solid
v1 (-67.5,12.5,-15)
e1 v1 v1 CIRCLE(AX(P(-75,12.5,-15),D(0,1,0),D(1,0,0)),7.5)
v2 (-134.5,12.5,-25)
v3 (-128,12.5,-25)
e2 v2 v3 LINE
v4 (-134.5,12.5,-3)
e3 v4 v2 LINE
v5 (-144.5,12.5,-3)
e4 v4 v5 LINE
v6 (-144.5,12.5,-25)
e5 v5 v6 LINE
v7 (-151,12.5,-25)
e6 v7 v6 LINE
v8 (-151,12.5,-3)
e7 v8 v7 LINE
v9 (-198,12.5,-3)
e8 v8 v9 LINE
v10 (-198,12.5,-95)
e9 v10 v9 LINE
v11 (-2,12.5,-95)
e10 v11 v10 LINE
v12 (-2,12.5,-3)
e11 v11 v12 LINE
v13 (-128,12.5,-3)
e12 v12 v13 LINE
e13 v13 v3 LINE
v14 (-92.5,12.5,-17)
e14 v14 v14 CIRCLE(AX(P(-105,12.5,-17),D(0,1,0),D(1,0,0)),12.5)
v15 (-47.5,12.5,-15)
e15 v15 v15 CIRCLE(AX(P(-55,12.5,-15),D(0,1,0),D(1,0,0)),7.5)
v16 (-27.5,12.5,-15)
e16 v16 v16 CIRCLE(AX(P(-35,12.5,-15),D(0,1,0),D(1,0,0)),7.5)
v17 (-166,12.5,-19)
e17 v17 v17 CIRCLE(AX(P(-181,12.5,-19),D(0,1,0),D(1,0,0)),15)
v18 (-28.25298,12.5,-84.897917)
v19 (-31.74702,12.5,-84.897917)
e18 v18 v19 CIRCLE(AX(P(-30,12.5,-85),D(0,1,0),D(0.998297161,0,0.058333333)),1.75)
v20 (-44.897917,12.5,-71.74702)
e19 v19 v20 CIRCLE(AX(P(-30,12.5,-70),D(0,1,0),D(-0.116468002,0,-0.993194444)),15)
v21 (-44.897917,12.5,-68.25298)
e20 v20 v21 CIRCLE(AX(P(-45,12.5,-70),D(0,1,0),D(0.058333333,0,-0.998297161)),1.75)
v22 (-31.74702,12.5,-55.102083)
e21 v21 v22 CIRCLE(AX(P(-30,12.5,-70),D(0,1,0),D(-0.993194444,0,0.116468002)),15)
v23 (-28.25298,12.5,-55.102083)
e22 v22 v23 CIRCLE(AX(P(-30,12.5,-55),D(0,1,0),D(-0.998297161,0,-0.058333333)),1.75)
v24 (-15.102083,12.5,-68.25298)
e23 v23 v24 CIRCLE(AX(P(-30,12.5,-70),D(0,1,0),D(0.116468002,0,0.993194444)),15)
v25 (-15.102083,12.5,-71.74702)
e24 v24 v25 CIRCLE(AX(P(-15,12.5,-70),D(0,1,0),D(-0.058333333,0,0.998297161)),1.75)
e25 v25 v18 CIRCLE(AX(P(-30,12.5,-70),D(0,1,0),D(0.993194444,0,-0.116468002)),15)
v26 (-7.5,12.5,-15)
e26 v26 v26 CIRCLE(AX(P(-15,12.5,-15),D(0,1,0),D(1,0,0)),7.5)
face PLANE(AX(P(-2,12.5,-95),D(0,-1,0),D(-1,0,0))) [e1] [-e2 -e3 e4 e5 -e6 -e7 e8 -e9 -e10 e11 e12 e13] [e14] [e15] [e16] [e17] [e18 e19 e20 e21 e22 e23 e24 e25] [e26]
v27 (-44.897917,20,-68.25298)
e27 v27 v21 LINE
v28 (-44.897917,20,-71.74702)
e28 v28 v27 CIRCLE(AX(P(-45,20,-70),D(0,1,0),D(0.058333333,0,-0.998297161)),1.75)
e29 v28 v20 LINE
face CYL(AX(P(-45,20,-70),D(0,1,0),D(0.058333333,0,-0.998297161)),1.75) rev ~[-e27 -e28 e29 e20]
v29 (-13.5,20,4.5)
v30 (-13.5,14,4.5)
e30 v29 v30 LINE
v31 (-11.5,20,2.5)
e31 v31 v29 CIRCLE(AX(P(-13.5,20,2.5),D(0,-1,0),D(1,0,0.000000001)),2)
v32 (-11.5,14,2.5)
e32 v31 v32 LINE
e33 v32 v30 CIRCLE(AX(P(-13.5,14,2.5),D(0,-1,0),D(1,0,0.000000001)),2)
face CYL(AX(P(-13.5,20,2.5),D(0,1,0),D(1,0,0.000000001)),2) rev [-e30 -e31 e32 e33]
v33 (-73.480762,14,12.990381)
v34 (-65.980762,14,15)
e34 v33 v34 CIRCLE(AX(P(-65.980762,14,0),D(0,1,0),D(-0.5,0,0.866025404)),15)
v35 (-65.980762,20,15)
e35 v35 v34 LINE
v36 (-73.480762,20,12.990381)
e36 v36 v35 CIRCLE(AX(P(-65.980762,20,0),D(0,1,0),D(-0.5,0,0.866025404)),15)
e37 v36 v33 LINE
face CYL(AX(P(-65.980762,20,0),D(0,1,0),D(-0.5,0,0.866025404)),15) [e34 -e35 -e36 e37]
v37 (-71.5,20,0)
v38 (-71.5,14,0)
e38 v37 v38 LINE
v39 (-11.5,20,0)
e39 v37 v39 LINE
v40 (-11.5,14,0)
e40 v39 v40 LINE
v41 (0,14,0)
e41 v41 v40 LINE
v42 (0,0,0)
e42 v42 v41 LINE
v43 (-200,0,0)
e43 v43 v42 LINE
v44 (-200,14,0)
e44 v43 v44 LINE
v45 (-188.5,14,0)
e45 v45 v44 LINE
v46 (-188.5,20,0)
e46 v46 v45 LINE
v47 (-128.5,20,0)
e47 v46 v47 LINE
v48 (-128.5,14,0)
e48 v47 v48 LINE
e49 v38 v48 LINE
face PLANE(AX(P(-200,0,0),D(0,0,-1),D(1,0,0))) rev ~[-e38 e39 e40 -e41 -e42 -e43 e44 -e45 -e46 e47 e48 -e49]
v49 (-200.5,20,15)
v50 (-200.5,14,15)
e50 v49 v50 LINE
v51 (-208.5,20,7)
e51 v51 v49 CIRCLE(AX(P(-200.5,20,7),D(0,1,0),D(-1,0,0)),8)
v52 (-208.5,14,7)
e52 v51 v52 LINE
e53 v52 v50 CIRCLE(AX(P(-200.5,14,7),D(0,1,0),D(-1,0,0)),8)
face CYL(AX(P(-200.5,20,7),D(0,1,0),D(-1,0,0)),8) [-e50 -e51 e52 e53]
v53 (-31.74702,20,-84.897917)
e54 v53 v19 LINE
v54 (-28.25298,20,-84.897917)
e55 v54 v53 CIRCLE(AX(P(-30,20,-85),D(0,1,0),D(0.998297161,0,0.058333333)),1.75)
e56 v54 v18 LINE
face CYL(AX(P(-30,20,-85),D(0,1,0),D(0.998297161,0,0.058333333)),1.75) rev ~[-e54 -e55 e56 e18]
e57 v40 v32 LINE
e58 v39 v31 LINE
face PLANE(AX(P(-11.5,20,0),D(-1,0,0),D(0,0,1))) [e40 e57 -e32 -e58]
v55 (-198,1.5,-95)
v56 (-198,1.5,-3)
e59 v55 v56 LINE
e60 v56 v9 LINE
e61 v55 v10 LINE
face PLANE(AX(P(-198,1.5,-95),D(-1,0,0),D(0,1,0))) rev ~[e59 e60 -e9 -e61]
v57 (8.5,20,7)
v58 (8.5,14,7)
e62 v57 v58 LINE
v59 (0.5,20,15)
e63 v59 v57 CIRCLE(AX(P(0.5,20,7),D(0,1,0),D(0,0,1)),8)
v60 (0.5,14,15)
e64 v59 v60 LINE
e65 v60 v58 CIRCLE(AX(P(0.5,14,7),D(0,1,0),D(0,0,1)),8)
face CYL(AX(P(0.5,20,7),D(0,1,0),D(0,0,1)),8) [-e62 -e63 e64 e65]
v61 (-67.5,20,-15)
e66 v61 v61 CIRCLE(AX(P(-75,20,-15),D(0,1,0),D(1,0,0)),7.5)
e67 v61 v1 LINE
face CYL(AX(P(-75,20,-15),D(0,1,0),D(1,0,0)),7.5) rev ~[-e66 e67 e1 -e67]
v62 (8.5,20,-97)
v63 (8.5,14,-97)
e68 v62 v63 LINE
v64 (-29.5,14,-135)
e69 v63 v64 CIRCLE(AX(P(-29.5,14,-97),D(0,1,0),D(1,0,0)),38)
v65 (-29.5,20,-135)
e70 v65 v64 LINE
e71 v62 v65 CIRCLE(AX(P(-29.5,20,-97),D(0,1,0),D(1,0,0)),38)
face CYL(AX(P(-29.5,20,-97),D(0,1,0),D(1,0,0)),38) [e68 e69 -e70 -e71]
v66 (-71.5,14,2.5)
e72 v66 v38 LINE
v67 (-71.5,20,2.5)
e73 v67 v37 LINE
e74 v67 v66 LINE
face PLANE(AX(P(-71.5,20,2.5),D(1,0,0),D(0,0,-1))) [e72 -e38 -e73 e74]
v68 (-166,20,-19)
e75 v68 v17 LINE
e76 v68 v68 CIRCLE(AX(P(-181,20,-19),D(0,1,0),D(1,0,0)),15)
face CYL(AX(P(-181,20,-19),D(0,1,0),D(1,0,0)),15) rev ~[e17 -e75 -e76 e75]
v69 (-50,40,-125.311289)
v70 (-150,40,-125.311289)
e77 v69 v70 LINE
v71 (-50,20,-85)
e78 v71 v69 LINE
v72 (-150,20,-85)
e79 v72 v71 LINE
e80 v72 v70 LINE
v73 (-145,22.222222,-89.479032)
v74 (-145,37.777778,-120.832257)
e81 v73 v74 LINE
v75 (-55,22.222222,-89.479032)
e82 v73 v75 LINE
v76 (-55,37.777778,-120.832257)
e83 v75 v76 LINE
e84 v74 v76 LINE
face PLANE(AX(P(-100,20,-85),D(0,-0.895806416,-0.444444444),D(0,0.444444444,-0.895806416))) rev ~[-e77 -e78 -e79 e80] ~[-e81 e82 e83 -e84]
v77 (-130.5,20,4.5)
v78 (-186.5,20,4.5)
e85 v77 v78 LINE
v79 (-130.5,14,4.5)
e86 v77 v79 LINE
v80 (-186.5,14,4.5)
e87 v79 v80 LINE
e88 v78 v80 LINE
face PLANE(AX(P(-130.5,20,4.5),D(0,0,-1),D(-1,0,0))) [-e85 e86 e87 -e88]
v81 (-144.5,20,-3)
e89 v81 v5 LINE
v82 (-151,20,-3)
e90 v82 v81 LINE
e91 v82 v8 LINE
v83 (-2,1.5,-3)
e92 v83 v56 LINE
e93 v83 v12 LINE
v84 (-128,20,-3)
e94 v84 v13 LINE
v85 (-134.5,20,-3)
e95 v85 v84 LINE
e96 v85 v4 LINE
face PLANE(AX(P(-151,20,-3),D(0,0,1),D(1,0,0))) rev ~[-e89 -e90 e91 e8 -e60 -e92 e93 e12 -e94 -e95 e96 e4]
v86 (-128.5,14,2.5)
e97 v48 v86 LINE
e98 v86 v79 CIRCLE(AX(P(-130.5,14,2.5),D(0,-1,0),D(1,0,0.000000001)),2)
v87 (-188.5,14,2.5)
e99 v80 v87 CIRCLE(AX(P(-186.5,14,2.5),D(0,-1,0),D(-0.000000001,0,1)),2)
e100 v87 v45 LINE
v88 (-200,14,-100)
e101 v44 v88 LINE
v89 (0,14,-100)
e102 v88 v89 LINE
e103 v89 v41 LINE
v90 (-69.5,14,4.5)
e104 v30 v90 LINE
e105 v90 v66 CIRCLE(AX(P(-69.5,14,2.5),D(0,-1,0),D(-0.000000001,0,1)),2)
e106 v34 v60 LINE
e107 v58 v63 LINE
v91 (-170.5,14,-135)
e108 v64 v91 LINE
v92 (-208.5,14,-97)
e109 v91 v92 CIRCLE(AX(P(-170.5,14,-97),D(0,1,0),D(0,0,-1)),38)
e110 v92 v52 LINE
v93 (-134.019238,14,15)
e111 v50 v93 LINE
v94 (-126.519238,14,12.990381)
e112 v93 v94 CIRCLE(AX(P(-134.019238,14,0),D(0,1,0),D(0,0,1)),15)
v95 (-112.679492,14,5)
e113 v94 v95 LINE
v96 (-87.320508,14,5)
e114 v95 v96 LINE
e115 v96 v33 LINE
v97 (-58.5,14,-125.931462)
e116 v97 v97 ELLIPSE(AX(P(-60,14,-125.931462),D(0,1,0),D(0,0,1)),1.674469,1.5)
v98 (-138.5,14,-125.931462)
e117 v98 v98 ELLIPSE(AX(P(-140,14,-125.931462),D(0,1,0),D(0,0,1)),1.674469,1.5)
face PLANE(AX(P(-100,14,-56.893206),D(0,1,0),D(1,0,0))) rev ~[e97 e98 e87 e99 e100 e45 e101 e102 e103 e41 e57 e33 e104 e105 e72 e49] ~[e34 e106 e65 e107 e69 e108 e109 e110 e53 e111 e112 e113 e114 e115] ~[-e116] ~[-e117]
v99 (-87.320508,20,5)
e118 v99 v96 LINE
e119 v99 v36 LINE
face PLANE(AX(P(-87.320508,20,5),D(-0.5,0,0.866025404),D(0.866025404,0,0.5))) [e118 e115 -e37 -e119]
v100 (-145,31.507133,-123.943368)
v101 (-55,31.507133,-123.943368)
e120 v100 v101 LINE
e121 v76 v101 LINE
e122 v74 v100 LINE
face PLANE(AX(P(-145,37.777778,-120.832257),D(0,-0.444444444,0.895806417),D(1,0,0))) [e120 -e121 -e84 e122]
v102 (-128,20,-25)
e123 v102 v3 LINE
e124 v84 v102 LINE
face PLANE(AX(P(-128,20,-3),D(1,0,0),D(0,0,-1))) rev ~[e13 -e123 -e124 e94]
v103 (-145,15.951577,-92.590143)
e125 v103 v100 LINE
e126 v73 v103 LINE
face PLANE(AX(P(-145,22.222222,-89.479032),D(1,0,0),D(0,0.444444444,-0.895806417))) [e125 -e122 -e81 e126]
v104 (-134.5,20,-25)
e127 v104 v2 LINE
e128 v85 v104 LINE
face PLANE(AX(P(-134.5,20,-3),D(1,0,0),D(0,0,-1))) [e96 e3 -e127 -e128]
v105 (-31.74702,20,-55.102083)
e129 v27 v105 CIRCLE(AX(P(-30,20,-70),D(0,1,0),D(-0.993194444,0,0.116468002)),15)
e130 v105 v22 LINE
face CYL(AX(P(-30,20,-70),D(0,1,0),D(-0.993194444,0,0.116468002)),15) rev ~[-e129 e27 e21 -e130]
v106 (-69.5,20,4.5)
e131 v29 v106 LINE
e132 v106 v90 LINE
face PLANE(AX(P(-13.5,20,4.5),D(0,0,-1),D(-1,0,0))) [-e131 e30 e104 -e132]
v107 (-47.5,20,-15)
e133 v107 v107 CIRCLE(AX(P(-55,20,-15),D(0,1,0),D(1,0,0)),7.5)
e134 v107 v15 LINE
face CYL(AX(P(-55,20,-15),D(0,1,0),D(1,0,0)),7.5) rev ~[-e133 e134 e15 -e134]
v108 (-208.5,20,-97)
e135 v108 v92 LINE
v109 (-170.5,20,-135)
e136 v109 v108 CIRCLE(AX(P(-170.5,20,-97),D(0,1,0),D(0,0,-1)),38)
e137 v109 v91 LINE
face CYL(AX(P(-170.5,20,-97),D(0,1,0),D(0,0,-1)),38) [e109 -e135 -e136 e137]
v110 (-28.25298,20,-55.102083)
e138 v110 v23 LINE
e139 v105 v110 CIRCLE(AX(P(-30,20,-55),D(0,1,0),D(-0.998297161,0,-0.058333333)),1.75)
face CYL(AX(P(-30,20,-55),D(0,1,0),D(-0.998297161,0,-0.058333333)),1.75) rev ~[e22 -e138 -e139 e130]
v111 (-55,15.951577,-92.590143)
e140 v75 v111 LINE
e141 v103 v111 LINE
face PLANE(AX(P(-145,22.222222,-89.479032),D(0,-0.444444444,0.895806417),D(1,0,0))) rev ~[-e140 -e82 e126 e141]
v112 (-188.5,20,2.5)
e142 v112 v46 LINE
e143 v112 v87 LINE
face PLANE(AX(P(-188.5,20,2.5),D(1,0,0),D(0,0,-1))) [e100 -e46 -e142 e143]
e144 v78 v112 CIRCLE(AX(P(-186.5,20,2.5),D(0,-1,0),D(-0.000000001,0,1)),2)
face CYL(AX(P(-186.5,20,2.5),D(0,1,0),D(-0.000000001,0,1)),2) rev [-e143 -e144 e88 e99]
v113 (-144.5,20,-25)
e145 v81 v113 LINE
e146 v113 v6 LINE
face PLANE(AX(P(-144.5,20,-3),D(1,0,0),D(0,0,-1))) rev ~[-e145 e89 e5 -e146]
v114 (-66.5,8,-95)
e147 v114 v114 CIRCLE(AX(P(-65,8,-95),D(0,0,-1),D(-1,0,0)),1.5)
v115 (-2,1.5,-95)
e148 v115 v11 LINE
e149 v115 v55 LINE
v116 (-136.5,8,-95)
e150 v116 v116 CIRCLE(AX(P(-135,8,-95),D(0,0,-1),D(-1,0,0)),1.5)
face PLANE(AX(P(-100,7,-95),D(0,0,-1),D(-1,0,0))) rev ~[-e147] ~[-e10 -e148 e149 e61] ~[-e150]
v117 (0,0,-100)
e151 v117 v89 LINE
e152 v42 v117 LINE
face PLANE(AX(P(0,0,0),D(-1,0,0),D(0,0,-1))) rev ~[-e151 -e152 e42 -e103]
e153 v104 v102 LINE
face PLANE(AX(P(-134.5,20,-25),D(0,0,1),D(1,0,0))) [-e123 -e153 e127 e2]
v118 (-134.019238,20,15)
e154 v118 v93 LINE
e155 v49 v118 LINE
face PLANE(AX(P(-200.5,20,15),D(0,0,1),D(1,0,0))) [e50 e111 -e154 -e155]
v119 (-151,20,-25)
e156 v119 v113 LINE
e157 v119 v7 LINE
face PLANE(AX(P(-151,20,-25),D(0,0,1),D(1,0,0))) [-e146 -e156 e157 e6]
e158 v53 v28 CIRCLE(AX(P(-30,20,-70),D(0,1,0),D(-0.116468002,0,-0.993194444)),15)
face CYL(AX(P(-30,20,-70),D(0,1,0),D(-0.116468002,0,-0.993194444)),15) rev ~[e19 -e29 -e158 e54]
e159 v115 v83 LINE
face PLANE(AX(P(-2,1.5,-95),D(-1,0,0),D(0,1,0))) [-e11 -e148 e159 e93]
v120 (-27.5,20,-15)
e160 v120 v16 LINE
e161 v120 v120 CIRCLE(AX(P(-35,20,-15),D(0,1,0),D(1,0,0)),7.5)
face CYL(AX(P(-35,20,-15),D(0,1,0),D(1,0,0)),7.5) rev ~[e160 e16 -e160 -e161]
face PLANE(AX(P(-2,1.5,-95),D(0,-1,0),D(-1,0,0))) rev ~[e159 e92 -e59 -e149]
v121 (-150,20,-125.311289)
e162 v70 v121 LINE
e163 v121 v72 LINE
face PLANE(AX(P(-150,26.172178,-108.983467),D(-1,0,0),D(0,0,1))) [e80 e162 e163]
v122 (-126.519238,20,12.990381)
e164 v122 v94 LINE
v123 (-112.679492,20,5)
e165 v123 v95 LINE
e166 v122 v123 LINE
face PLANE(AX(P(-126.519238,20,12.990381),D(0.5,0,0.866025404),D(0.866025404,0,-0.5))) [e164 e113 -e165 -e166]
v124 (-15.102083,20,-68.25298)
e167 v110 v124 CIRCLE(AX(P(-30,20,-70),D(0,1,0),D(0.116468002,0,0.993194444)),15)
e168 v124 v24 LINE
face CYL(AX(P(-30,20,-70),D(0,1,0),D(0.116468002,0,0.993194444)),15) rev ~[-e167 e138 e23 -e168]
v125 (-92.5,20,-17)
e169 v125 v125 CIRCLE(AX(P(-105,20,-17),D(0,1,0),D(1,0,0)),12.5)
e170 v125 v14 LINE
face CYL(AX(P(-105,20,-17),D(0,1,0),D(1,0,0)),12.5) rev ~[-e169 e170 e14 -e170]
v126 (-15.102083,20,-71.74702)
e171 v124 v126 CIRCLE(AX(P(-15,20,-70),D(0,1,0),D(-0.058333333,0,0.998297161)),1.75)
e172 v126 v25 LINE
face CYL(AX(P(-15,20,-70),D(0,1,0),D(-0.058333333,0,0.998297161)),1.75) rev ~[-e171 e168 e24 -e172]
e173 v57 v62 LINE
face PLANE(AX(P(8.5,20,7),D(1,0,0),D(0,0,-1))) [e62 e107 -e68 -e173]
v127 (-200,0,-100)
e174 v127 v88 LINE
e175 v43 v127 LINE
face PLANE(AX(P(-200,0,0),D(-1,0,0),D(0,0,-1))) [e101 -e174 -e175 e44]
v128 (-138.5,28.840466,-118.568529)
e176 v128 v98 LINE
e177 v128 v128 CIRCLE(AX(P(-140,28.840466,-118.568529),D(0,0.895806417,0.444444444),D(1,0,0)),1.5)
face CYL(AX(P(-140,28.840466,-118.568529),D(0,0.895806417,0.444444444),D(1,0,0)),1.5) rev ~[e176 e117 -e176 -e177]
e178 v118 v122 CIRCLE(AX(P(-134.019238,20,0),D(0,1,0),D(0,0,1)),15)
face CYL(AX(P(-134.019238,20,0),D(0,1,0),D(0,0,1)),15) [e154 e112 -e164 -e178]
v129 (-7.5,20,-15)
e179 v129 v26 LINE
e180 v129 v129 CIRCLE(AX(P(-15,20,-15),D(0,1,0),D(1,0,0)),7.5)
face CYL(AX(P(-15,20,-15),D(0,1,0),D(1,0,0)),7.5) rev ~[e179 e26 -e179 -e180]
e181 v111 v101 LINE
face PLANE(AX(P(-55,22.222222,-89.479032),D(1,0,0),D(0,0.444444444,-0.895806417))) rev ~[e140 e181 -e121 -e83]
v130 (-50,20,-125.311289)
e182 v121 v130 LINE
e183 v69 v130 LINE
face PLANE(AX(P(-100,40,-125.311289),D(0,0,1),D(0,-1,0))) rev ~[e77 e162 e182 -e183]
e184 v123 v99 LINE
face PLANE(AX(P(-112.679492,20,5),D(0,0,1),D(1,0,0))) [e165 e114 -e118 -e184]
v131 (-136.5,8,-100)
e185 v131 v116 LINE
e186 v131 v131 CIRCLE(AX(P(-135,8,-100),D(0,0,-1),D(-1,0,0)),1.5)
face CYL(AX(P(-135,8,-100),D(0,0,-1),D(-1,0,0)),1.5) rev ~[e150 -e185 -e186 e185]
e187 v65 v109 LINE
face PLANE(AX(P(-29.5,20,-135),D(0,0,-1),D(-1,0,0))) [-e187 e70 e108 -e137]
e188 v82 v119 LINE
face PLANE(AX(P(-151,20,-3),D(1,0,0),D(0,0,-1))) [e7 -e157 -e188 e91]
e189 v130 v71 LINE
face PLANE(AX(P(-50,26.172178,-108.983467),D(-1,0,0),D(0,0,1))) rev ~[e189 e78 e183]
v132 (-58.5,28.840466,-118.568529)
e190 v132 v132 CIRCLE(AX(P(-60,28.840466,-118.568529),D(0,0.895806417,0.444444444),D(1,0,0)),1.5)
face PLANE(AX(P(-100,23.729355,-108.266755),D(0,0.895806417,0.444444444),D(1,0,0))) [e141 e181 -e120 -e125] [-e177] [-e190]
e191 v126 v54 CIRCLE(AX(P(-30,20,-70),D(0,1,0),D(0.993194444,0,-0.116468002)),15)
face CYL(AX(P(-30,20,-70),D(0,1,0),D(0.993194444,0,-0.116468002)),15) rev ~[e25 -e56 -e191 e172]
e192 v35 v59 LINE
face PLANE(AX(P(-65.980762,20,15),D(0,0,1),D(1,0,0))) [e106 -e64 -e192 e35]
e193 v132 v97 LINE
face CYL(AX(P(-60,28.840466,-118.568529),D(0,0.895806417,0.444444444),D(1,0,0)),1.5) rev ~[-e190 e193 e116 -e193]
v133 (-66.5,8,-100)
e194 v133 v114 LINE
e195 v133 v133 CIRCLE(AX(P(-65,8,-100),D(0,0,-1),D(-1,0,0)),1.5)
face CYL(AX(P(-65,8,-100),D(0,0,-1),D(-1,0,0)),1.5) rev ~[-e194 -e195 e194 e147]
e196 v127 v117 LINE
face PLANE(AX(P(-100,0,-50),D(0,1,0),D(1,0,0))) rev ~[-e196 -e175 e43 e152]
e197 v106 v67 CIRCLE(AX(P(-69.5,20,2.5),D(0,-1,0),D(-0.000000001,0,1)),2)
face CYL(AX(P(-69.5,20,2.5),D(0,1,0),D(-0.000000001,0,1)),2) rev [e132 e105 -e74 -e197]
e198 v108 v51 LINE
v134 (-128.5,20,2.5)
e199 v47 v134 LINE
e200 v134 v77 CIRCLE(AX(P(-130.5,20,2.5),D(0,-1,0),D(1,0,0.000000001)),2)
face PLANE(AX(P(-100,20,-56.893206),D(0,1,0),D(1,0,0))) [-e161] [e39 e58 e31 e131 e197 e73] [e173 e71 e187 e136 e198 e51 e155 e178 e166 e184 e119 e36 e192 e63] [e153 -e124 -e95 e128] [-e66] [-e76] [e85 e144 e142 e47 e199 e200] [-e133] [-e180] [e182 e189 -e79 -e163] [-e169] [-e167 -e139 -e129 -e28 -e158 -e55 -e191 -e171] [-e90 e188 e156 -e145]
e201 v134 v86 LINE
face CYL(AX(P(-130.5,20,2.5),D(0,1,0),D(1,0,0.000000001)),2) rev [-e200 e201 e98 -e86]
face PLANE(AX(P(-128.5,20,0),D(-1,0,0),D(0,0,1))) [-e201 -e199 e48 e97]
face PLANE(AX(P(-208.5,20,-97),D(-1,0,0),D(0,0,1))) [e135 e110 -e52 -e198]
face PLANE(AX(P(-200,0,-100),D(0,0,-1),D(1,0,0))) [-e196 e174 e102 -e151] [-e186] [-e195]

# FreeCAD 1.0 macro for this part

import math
import FreeCAD as App
import Part
import Sketcher
from FreeCAD import Vector
Q = App.Units.Quantity


def add_polygon(sketch, points):
    """Adds a closed chain of lines whose ends are joined by coincident constraints."""
    first, n = sketch.GeometryCount, len(points)
    for a, b in zip(points, points[1:] + points[:1]):
        sketch.addGeometry(Part.LineSegment(App.Vector(*a, 0), App.Vector(*b, 0)), False)
    for i in range(n):
        sketch.addConstraint(Sketcher.Constraint("Coincident", first + i, 2, first + (i + 1) % n, 1))

doc = App.newDocument("Part")
params = doc.addObject("Spreadsheet::Sheet", "Params")
for row, (alias, value) in enumerate([
    ("sketch1_width", "200 mm"),
    ("sketch1_height", "100 mm"),
    ("pad1_length", "20 mm"),
    ("sketch2_diameter", "15 mm"),
    ("sketch2_diameter2", "25 mm"),
    ("sketch2_diameter3", "30 mm"),
    ("sketch2_height", "22 mm"),
    ("sketch2_radius", "1.75 mm"),
    ("pocket1_length", "12 mm"),
    ("sketch3_radius", "15 mm"),
    ("sketch3_radius2", "8 mm"),
    ("sketch3_radius3", "38 mm"),
    ("sketch3_radius4", "2 mm"),
    ("sketch3_width", "141 mm"),
    ("pad2_length", "6 mm"),
    ("sketch4_width", "20 mm"),
    ("sketch4_length", "45 mm"),
    ("pad3_length", "100 mm"),
    ("sketch5_width", "90 mm"),
    ("sketch5_height", "35 mm"),
    ("pocket2_length", "7 mm"),
    ("sketch6_diameter", "3 mm"),
    ("sketch7_width", "196 mm"),
    ("sketch7_height", "11 mm"),
    ("pocket4_length", "92 mm"),
    ("sketch8_diameter", "3 mm"),
    ("pocket5_length", "10 mm"),
], start=1):
    params.set(f"A{row}", alias)
    params.set(f"B{row}", "=" + value)
    params.setAlias(f"B{row}", alias)

body = doc.addObject("PartDesign::Body", "Body")

# Sketch on XZ plane
sketch1 = body.newObject("Sketcher::SketchObject", "Sketch")
sketch1.AttachmentSupport = (doc.getObject("XZ_Plane"), [""])
sketch1.MapMode = "FlatFace"
add_polygon(sketch1, [(-200, -100), (-200, 0), (0, 0), (0, -100)])  # lines 0-3
sketch1.addConstraint(Sketcher.Constraint("Vertical", 0))
sketch1.addConstraint(Sketcher.Constraint("Horizontal", 1))
sketch1.addConstraint(Sketcher.Constraint("Vertical", 2))
sketch1.addConstraint(Sketcher.Constraint("Horizontal", 3))
sketch1.addConstraint(Sketcher.Constraint("Coincident", 1, 2, -1, 1))
sketch1.addConstraint(Sketcher.Constraint("DistanceX", 1, 1, 1, 2, 200.0))
sketch1.addConstraint(Sketcher.Constraint("DistanceY", 0, 1, 0, 2, 100.0))
sketch1.setExpression("Constraints[9]", "Params.sketch1_width")
sketch1.setExpression("Constraints[10]", "Params.sketch1_height")
pad1 = body.newObject("PartDesign::Pad", "Pad")
pad1.Profile = sketch1
pad1.setExpression("Length", "Params.pad1_length")
pad1.Reversed = True

# Sketch on XZ plane
sketch2 = body.newObject("Sketcher::SketchObject", "Sketch001")
sketch2.AttachmentSupport = (doc.getObject("XZ_Plane"), [""])
sketch2.MapMode = "FlatFace"
sketch2.AttachmentOffset = App.Placement(Vector(0, 0, -20), App.Rotation())
sketch2.addGeometry(Part.Circle(Vector(-15, -15, 0), Vector(0, 0, 1), 7.5), False)  # 0
sketch2.addGeometry(Part.Circle(Vector(-35, -15, 0), Vector(0, 0, 1), 7.5), False)  # 1
sketch2.addGeometry(Part.Circle(Vector(-55, -15, 0), Vector(0, 0, 1), 7.5), False)  # 2
sketch2.addGeometry(Part.Circle(Vector(-75, -15, 0), Vector(0, 0, 1), 7.5), False)  # 3
sketch2.addGeometry(Part.Circle(Vector(-105, -17, 0), Vector(0, 0, 1), 12.5), False)  # 4
sketch2.addGeometry(Part.Circle(Vector(-181, -19, 0), Vector(0, 0, 1), 15), False)  # 5
add_polygon(sketch2, [(-151, -25), (-151, -3), (-144.5, -3), (-144.5, -25)])  # lines 6-9
add_polygon(sketch2, [(-134.5, -25), (-134.5, -3), (-128, -3), (-128, -25)])  # lines 10-13
sketch2.addGeometry(Part.ArcOfCircle(Part.Circle(Vector(-30, -70, 0), Vector(0, 0, 1), 15), math.radians(97), math.radians(173)), False)  # 14
sketch2.addGeometry(Part.ArcOfCircle(Part.Circle(Vector(-30, -55, 0), Vector(0, 0, 1), 1.8), math.radians(-3), math.radians(183)), False)  # 15
sketch2.addGeometry(Part.ArcOfCircle(Part.Circle(Vector(-30, -70, 0), Vector(0, 0, 1), 15), math.radians(7), math.radians(83)), False)  # 16
sketch2.addGeometry(Part.ArcOfCircle(Part.Circle(Vector(-15, -70, 0), Vector(0, 0, 1), 1.8), math.radians(-93), math.radians(93)), False)  # 17
sketch2.addGeometry(Part.ArcOfCircle(Part.Circle(Vector(-30, -70, 0), Vector(0, 0, 1), 15), math.radians(-83), math.radians(-7)), False)  # 18
sketch2.addGeometry(Part.ArcOfCircle(Part.Circle(Vector(-30, -85, 0), Vector(0, 0, 1), 1.8), math.radians(177), math.radians(363)), False)  # 19
sketch2.addGeometry(Part.ArcOfCircle(Part.Circle(Vector(-30, -70, 0), Vector(0, 0, 1), 15), math.radians(-173), math.radians(-97)), False)  # 20
sketch2.addGeometry(Part.ArcOfCircle(Part.Circle(Vector(-45, -70, 0), Vector(0, 0, 1), 1.8), math.radians(87), math.radians(273)), False)  # 21
sketch2.addConstraint(Sketcher.Constraint("Coincident", 14, 1, 15, 2))
sketch2.addConstraint(Sketcher.Constraint("Coincident", 15, 1, 16, 2))
sketch2.addConstraint(Sketcher.Constraint("Coincident", 16, 1, 17, 2))
sketch2.addConstraint(Sketcher.Constraint("Coincident", 17, 1, 18, 2))
sketch2.addConstraint(Sketcher.Constraint("Coincident", 18, 1, 19, 2))
sketch2.addConstraint(Sketcher.Constraint("Coincident", 19, 1, 20, 2))
sketch2.addConstraint(Sketcher.Constraint("Coincident", 20, 1, 21, 2))
sketch2.addConstraint(Sketcher.Constraint("Coincident", 21, 1, 14, 2))
sketch2.addConstraint(Sketcher.Constraint("Vertical", 6))
sketch2.addConstraint(Sketcher.Constraint("Horizontal", 7))
sketch2.addConstraint(Sketcher.Constraint("Vertical", 8))
sketch2.addConstraint(Sketcher.Constraint("Horizontal", 9))
sketch2.addConstraint(Sketcher.Constraint("Vertical", 10))
sketch2.addConstraint(Sketcher.Constraint("Horizontal", 11))
sketch2.addConstraint(Sketcher.Constraint("Vertical", 12))
sketch2.addConstraint(Sketcher.Constraint("Horizontal", 13))
sketch2.addConstraint(Sketcher.Constraint("Coincident", 16, 3, 14, 3))
sketch2.addConstraint(Sketcher.Constraint("Coincident", 18, 3, 14, 3))
sketch2.addConstraint(Sketcher.Constraint("Coincident", 20, 3, 14, 3))
sketch2.addConstraint(Sketcher.Constraint("Equal", 0, 1))
sketch2.addConstraint(Sketcher.Constraint("Equal", 1, 2))
sketch2.addConstraint(Sketcher.Constraint("Equal", 2, 3))
sketch2.addConstraint(Sketcher.Constraint("Equal", 5, 14))
sketch2.addConstraint(Sketcher.Constraint("Equal", 14, 16))
sketch2.addConstraint(Sketcher.Constraint("Equal", 15, 17))
sketch2.addConstraint(Sketcher.Constraint("Equal", 16, 18))
sketch2.addConstraint(Sketcher.Constraint("Equal", 17, 19))
sketch2.addConstraint(Sketcher.Constraint("Equal", 18, 20))
sketch2.addConstraint(Sketcher.Constraint("Equal", 19, 21))
sketch2.addConstraint(Sketcher.Constraint("Horizontal", 0, 3, 1, 3))
sketch2.addConstraint(Sketcher.Constraint("Horizontal", 1, 3, 2, 3))
sketch2.addConstraint(Sketcher.Constraint("Horizontal", 2, 3, 3, 3))
sketch2.addConstraint(Sketcher.Constraint("Horizontal", 16, 3, 17, 3))
sketch2.addConstraint(Sketcher.Constraint("Horizontal", 20, 3, 21, 3))
sketch2.addConstraint(Sketcher.Constraint("Horizontal", 7, 2, 10, 2))
sketch2.addConstraint(Sketcher.Constraint("Horizontal", 9, 2, 12, 2))
sketch2.addConstraint(Sketcher.Constraint("Horizontal", 14, 1, 15, 1))
sketch2.addConstraint(Sketcher.Constraint("Horizontal", 18, 1, 19, 1))
sketch2.addConstraint(Sketcher.Constraint("Horizontal", 17, 1, 20, 1))
sketch2.addConstraint(Sketcher.Constraint("Vertical", 0, 3, 17, 3))
sketch2.addConstraint(Sketcher.Constraint("Vertical", 15, 1, 18, 1))
sketch2.addConstraint(Sketcher.Constraint("Equal", 9, 11))
sketch2.addConstraint(Sketcher.Constraint("Diameter", 0, 15.0))
sketch2.addConstraint(Sketcher.Constraint("Diameter", 4, 25.0))
sketch2.addConstraint(Sketcher.Constraint("Diameter", 5, 30.0))
sketch2.addConstraint(Sketcher.Constraint("DistanceY", 6, 1, 6, 2, 22.0))
sketch2.addConstraint(Sketcher.Constraint("Radius", 15, 1.75))
sketch2.addConstraint(Sketcher.Constraint("DistanceX", 7, 1, 7, 2, 6.5))
sketch2.addConstraint(Sketcher.Constraint("DistanceX", 0, 3, -1, 1, 15.0))
sketch2.addConstraint(Sketcher.Constraint("DistanceY", 0, 3, -1, 1, 15.0))
sketch2.addConstraint(Sketcher.Constraint("DistanceX", 1, 3, -1, 1, 35.0))
sketch2.addConstraint(Sketcher.Constraint("DistanceX", 2, 3, -1, 1, 55.0))
sketch2.addConstraint(Sketcher.Constraint("DistanceX", 3, 3, -1, 1, 75.0))
sketch2.addConstraint(Sketcher.Constraint("DistanceX", 4, 3, -1, 1, 105.0))
sketch2.addConstraint(Sketcher.Constraint("DistanceY", 4, 3, -1, 1, 17.0))
sketch2.addConstraint(Sketcher.Constraint("DistanceX", 5, 3, -1, 1, 181.0))
sketch2.addConstraint(Sketcher.Constraint("DistanceY", 5, 3, -1, 1, 19.0))
sketch2.addConstraint(Sketcher.Constraint("DistanceX", 14, 3, -1, 1, 30.0))
sketch2.addConstraint(Sketcher.Constraint("DistanceY", 14, 3, -1, 1, 70.0))
sketch2.addConstraint(Sketcher.Constraint("DistanceY", 15, 3, -1, 1, 55.0))
sketch2.addConstraint(Sketcher.Constraint("DistanceX", 6, 2, -1, 1, 151.0))
sketch2.addConstraint(Sketcher.Constraint("DistanceY", 6, 2, -1, 1, 3.0))
sketch2.addConstraint(Sketcher.Constraint("DistanceX", 11, 2, -1, 1, 128.0))
sketch2.setExpression("Constraints[50]", "Params.sketch2_diameter")
sketch2.setExpression("Constraints[51]", "Params.sketch2_diameter2")
sketch2.setExpression("Constraints[52]", "Params.sketch2_diameter3")
sketch2.setExpression("Constraints[53]", "Params.sketch2_height")
sketch2.setExpression("Constraints[54]", "Params.sketch2_radius")
pocket1 = body.newObject("PartDesign::Pocket", "Pocket")
pocket1.Profile = sketch2
pocket1.setExpression("Length", "Params.pocket1_length")
pocket1.Reversed = True

# Sketch on XZ plane
sketch3 = body.newObject("Sketcher::SketchObject", "Sketch002")
sketch3.AttachmentSupport = (doc.getObject("XZ_Plane"), [""])
sketch3.MapMode = "FlatFace"
sketch3.AttachmentOffset = App.Placement(Vector(0, 0, -20), App.Rotation())
sketch3.addGeometry(Part.LineSegment(Vector(-112.7, 5, 0), Vector(-87.3, 5, 0)), False)
sketch3.addGeometry(Part.LineSegment(Vector(-87.3, 5, 0), Vector(-73.5, 13, 0)), False)
sketch3.addGeometry(Part.ArcOfCircle(Part.Circle(Vector(-66, 0, 0), Vector(0, 0, 1), 15), math.radians(90), math.radians(120)), False)
sketch3.addGeometry(Part.LineSegment(Vector(-66, 15, 0), Vector(0.5, 15, 0)), False)
sketch3.addGeometry(Part.ArcOfCircle(Part.Circle(Vector(0.5, 7, 0), Vector(0, 0, 1), 8), math.radians(0), math.radians(90)), False)
sketch3.addGeometry(Part.LineSegment(Vector(8.5, 7, 0), Vector(8.5, -97, 0)), False)
sketch3.addGeometry(Part.ArcOfCircle(Part.Circle(Vector(-29.5, -97, 0), Vector(0, 0, 1), 38), math.radians(-90), math.radians(0)), False)
sketch3.addGeometry(Part.LineSegment(Vector(-29.5, -135, 0), Vector(-170.5, -135, 0)), False)
sketch3.addGeometry(Part.ArcOfCircle(Part.Circle(Vector(-170.5, -97, 0), Vector(0, 0, 1), 38), math.radians(180), math.radians(270)), False)
sketch3.addGeometry(Part.LineSegment(Vector(-208.5, -97, 0), Vector(-208.5, 7, 0)), False)
sketch3.addGeometry(Part.ArcOfCircle(Part.Circle(Vector(-200.5, 7, 0), Vector(0, 0, 1), 8), math.radians(90), math.radians(180)), False)
sketch3.addGeometry(Part.LineSegment(Vector(-200.5, 15, 0), Vector(-134, 15, 0)), False)
sketch3.addGeometry(Part.ArcOfCircle(Part.Circle(Vector(-134, 0, 0), Vector(0, 0, 1), 15), math.radians(60), math.radians(90)), False)
sketch3.addGeometry(Part.LineSegment(Vector(-126.5, 13, 0), Vector(-112.7, 5, 0)), False)
sketch3.addGeometry(Part.LineSegment(Vector(-71.5, 2.5, 0), Vector(-71.5, 0, 0)), False)
sketch3.addGeometry(Part.LineSegment(Vector(-71.5, 0, 0), Vector(-128.5, 0, 0)), False)
sketch3.addGeometry(Part.LineSegment(Vector(-128.5, 0, 0), Vector(-128.5, 2.5, 0)), False)
sketch3.addGeometry(Part.ArcOfCircle(Part.Circle(Vector(-130.5, 2.5, 0), Vector(0, 0, 1), 2), math.radians(0), math.radians(90)), False)
sketch3.addGeometry(Part.LineSegment(Vector(-130.5, 4.5, 0), Vector(-186.5, 4.5, 0)), False)
sketch3.addGeometry(Part.ArcOfCircle(Part.Circle(Vector(-186.5, 2.5, 0), Vector(0, 0, 1), 2), math.radians(90), math.radians(180)), False)
sketch3.addGeometry(Part.LineSegment(Vector(-188.5, 2.5, 0), Vector(-188.5, 0, 0)), False)
sketch3.addGeometry(Part.LineSegment(Vector(-188.5, 0, 0), Vector(-200, 0, 0)), False)
sketch3.addGeometry(Part.LineSegment(Vector(-200, 0, 0), Vector(-200, -100, 0)), False)
sketch3.addGeometry(Part.LineSegment(Vector(-200, -100, 0), Vector(0, -100, 0)), False)
sketch3.addGeometry(Part.LineSegment(Vector(0, -100, 0), Vector(0, 0, 0)), False)
sketch3.addGeometry(Part.LineSegment(Vector(0, 0, 0), Vector(-11.5, 0, 0)), False)
sketch3.addGeometry(Part.LineSegment(Vector(-11.5, 0, 0), Vector(-11.5, 2.5, 0)), False)
sketch3.addGeometry(Part.ArcOfCircle(Part.Circle(Vector(-13.5, 2.5, 0), Vector(0, 0, 1), 2), math.radians(0), math.radians(90)), False)
sketch3.addGeometry(Part.LineSegment(Vector(-13.5, 4.5, 0), Vector(-69.5, 4.5, 0)), False)
sketch3.addGeometry(Part.ArcOfCircle(Part.Circle(Vector(-69.5, 2.5, 0), Vector(0, 0, 1), 2), math.radians(90), math.radians(180)), False)
sketch3.addConstraint(Sketcher.Constraint("Coincident", 0, 2, 1, 1))
sketch3.addConstraint(Sketcher.Constraint("Tangent", 1, 2, 2, 2))
sketch3.addConstraint(Sketcher.Constraint("Tangent", 2, 1, 3, 1))
sketch3.addConstraint(Sketcher.Constraint("Tangent", 3, 2, 4, 2))
sketch3.addConstraint(Sketcher.Constraint("Tangent", 4, 1, 5, 1))
sketch3.addConstraint(Sketcher.Constraint("Tangent", 5, 2, 6, 2))
sketch3.addConstraint(Sketcher.Constraint("Tangent", 6, 1, 7, 1))
sketch3.addConstraint(Sketcher.Constraint("Tangent", 7, 2, 8, 2))
sketch3.addConstraint(Sketcher.Constraint("Tangent", 8, 1, 9, 1))
sketch3.addConstraint(Sketcher.Constraint("Tangent", 9, 2, 10, 2))
sketch3.addConstraint(Sketcher.Constraint("Tangent", 10, 1, 11, 1))
sketch3.addConstraint(Sketcher.Constraint("Tangent", 11, 2, 12, 2))
sketch3.addConstraint(Sketcher.Constraint("Tangent", 12, 1, 13, 1))
sketch3.addConstraint(Sketcher.Constraint("Coincident", 13, 2, 0, 1))
sketch3.addConstraint(Sketcher.Constraint("Coincident", 14, 2, 15, 1))
sketch3.addConstraint(Sketcher.Constraint("Coincident", 15, 2, 16, 1))
sketch3.addConstraint(Sketcher.Constraint("Tangent", 16, 2, 17, 1))
sketch3.addConstraint(Sketcher.Constraint("Tangent", 17, 2, 18, 1))
sketch3.addConstraint(Sketcher.Constraint("Tangent", 18, 2, 19, 1))
sketch3.addConstraint(Sketcher.Constraint("Tangent", 19, 2, 20, 1))
sketch3.addConstraint(Sketcher.Constraint("Coincident", 20, 2, 21, 1))
sketch3.addConstraint(Sketcher.Constraint("Coincident", 21, 2, 22, 1))
sketch3.addConstraint(Sketcher.Constraint("Coincident", 22, 2, 23, 1))
sketch3.addConstraint(Sketcher.Constraint("Coincident", 23, 2, 24, 1))
sketch3.addConstraint(Sketcher.Constraint("Coincident", 24, 2, 25, 1))
sketch3.addConstraint(Sketcher.Constraint("Coincident", 25, 2, 26, 1))
sketch3.addConstraint(Sketcher.Constraint("Tangent", 26, 2, 27, 1))
sketch3.addConstraint(Sketcher.Constraint("Tangent", 27, 2, 28, 1))
sketch3.addConstraint(Sketcher.Constraint("Tangent", 28, 2, 29, 1))
sketch3.addConstraint(Sketcher.Constraint("Tangent", 29, 2, 14, 1))
sketch3.addConstraint(Sketcher.Constraint("Horizontal", 0))
sketch3.addConstraint(Sketcher.Constraint("Horizontal", 3))
sketch3.addConstraint(Sketcher.Constraint("Vertical", 5))
sketch3.addConstraint(Sketcher.Constraint("Horizontal", 7))
sketch3.addConstraint(Sketcher.Constraint("Vertical", 9))
sketch3.addConstraint(Sketcher.Constraint("Horizontal", 11))
sketch3.addConstraint(Sketcher.Constraint("Vertical", 14))
sketch3.addConstraint(Sketcher.Constraint("Horizontal", 15))
sketch3.addConstraint(Sketcher.Constraint("Vertical", 16))
sketch3.addConstraint(Sketcher.Constraint("Horizontal", 18))
sketch3.addConstraint(Sketcher.Constraint("Vertical", 20))
sketch3.addConstraint(Sketcher.Constraint("Horizontal", 21))
sketch3.addConstraint(Sketcher.Constraint("Vertical", 22))
sketch3.addConstraint(Sketcher.Constraint("Horizontal", 23))
sketch3.addConstraint(Sketcher.Constraint("Vertical", 24))
sketch3.addConstraint(Sketcher.Constraint("Horizontal", 25))
sketch3.addConstraint(Sketcher.Constraint("Vertical", 26))
sketch3.addConstraint(Sketcher.Constraint("Horizontal", 28))
sketch3.addConstraint(Sketcher.Constraint("Coincident", 24, 2, -1, 1))
sketch3.addConstraint(Sketcher.Constraint("Equal", 6, 8))
sketch3.addConstraint(Sketcher.Constraint("Equal", 4, 10))
sketch3.addConstraint(Sketcher.Constraint("Equal", 2, 12))
sketch3.addConstraint(Sketcher.Constraint("Equal", 17, 19))
sketch3.addConstraint(Sketcher.Constraint("Equal", 19, 27))
sketch3.addConstraint(Sketcher.Constraint("Equal", 27, 29))
sketch3.addConstraint(Sketcher.Constraint("PointOnObject", 2, 3, -1))
sketch3.addConstraint(Sketcher.Constraint("PointOnObject", 12, 3, -1))
sketch3.addConstraint(Sketcher.Constraint("PointOnObject", 14, 2, -1))
sketch3.addConstraint(Sketcher.Constraint("PointOnObject", 20, 2, -1))
sketch3.addConstraint(Sketcher.Constraint("Horizontal", 19, 3, 27, 3))
sketch3.addConstraint(Sketcher.Constraint("Horizontal", 1, 2, 12, 1))
sketch3.addConstraint(Sketcher.Constraint("Equal", 3, 11))
sketch3.addConstraint(Sketcher.Constraint("Equal", 21, 25))
sketch3.addConstraint(Sketcher.Constraint("Equal", 18, 28))
sketch3.addConstraint(Sketcher.Constraint("Radius", 2, 15.0))
sketch3.addConstraint(Sketcher.Constraint("Radius", 4, 8.0))
sketch3.addConstraint(Sketcher.Constraint("Radius", 6, 38.0))
sketch3.addConstraint(Sketcher.Constraint("Radius", 17, 2.0))
sketch3.addConstraint(Sketcher.Constraint("DistanceX", 7, 2, 7, 1, 141.0))
sketch3.addConstraint(Sketcher.Constraint("DistanceX", 15, 2, 15, 1, 57.0))
sketch3.addConstraint(Sketcher.Constraint("DistanceX", 18, 2, 18, 1, 56.0))
sketch3.addConstraint(Sketcher.Constraint("DistanceX", 23, 1, 23, 2, 200.0))
sketch3.addConstraint(Sketcher.Constraint("DistanceY", 5, 2, 5, 1, 104.0))
sketch3.addConstraint(Sketcher.Constraint("DistanceY", 22, 2, 22, 1, 100.0))
sketch3.addConstraint(Sketcher.Constraint("Angle", 1, Q("30 deg")))
sketch3.addConstraint(Sketcher.Constraint("DistanceY", 14, 2, 14, 1, 2.5))
sketch3.addConstraint(Sketcher.Constraint("DistanceY", -1, 1, 0, 2, 5.0))
sketch3.addConstraint(Sketcher.Constraint("DistanceX", 10, 3, 17, 3, 70.0))
sketch3.addConstraint(Sketcher.Constraint("DistanceX", 0, 1, 0, 2, 25.358984))
sketch3.setExpression("Constraints[64]", "Params.sketch3_radius")
sketch3.setExpression("Constraints[65]", "Params.sketch3_radius2")
sketch3.setExpression("Constraints[66]", "Params.sketch3_radius3")
sketch3.setExpression("Constraints[67]", "Params.sketch3_radius4")
sketch3.setExpression("Constraints[68]", "Params.sketch3_width")
pad2 = body.newObject("PartDesign::Pad", "Pad001")
pad2.Profile = sketch3
pad2.setExpression("Length", "Params.pad2_length")

# Sketch on YZ plane
sketch4 = body.newObject("Sketcher::SketchObject", "Sketch003")
sketch4.AttachmentSupport = (doc.getObject("YZ_Plane"), [""])
sketch4.MapMode = "FlatFace"
sketch4.AttachmentOffset = App.Placement(Vector(0, 0, -100), App.Rotation())
add_polygon(sketch4, [(40, -125), (20, -85), (20, -125)])  # lines 0-2
sketch4.addConstraint(Sketcher.Constraint("Vertical", 1))
sketch4.addConstraint(Sketcher.Constraint("Horizontal", 2))
sketch4.addConstraint(Sketcher.Constraint("DistanceX", 2, 1, 2, 2, 20.0))
sketch4.addConstraint(Sketcher.Constraint("Distance", 0, 45.0))
sketch4.addConstraint(Sketcher.Constraint("DistanceX", -1, 1, 0, 2, 20.0))
sketch4.addConstraint(Sketcher.Constraint("DistanceY", 0, 2, -1, 1, 85.0))
sketch4.setExpression("Constraints[5]", "Params.sketch4_width")
sketch4.setExpression("Constraints[6]", "Params.sketch4_length")
pad3 = body.newObject("PartDesign::Pad", "Pad002")
pad3.Profile = sketch4
pad3.setExpression("Length", "Params.pad3_length")
pad3.Midplane = True

# Sketch on an angled plane
sketch5 = body.newObject("Sketcher::SketchObject", "Sketch004")
sketch5.Placement = App.Placement(Vector(0, -17.792193, -8.8274), App.Rotation(Vector(1, 0, 0), Vector(0, 0.444444444, -0.895806417), Vector(0, 0.895806417, 0.444444444), "ZXY"))
add_polygon(sketch5, [(-145, 125), (-145, 90), (-55, 90), (-55, 125)])  # lines 0-3
sketch5.addConstraint(Sketcher.Constraint("Vertical", 0))
sketch5.addConstraint(Sketcher.Constraint("Horizontal", 1))
sketch5.addConstraint(Sketcher.Constraint("Vertical", 2))
sketch5.addConstraint(Sketcher.Constraint("Horizontal", 3))
sketch5.addConstraint(Sketcher.Constraint("DistanceX", 1, 1, 1, 2, 90.0))
sketch5.addConstraint(Sketcher.Constraint("DistanceY", 0, 2, 0, 1, 35.0))
sketch5.addConstraint(Sketcher.Constraint("DistanceX", 0, 2, -1, 1, 145.0))
sketch5.addConstraint(Sketcher.Constraint("DistanceY", -1, 1, 0, 2, 90.032434))
sketch5.setExpression("Constraints[8]", "Params.sketch5_width")
sketch5.setExpression("Constraints[9]", "Params.sketch5_height")
pocket2 = body.newObject("PartDesign::Pocket", "Pocket001")
pocket2.Profile = sketch5
pocket2.setExpression("Length", "Params.pocket2_length")

# Sketch on an angled plane
sketch6 = body.newObject("Sketcher::SketchObject", "Sketch005")
sketch6.Placement = App.Placement(Vector(0, -24.062838, -11.938511), App.Rotation(Vector(1, 0, 0), Vector(0, 0.444444444, -0.895806417), Vector(0, 0.895806417, 0.444444444), "ZXY"))
sketch6.addGeometry(Part.Circle(Vector(-140, 119, 0), Vector(0, 0, 1), 1.5), False)
sketch6.addGeometry(Part.Circle(Vector(-60, 119, 0), Vector(0, 0, 1), 1.5), False)
sketch6.addConstraint(Sketcher.Constraint("Equal", 0, 1))
sketch6.addConstraint(Sketcher.Constraint("Horizontal", 0, 3, 1, 3))
sketch6.addConstraint(Sketcher.Constraint("Diameter", 0, 3.0))
sketch6.addConstraint(Sketcher.Constraint("DistanceX", 0, 3, -1, 1, 140.0))
sketch6.addConstraint(Sketcher.Constraint("DistanceX", 1, 3, -1, 1, 60.0))
sketch6.addConstraint(Sketcher.Constraint("DistanceY", -1, 1, 0, 3, 119.032434))
sketch6.setExpression("Constraints[2]", "Params.sketch6_diameter")
pocket3 = body.newObject("PartDesign::Pocket", "Pocket002")
pocket3.Profile = sketch6
pocket3.Type = "ThroughAll"

# Sketch on XY plane
sketch7 = body.newObject("Sketcher::SketchObject", "Sketch006")
sketch7.AttachmentSupport = (doc.getObject("XY_Plane"), [""])
sketch7.MapMode = "FlatFace"
sketch7.AttachmentOffset = App.Placement(Vector(0, 0, -95), App.Rotation())
add_polygon(sketch7, [(-2, 12), (-2, 2), (-198, 2), (-198, 12)])  # lines 0-3
sketch7.addConstraint(Sketcher.Constraint("Vertical", 0))
sketch7.addConstraint(Sketcher.Constraint("Horizontal", 1))
sketch7.addConstraint(Sketcher.Constraint("Vertical", 2))
sketch7.addConstraint(Sketcher.Constraint("Horizontal", 3))
sketch7.addConstraint(Sketcher.Constraint("DistanceX", 1, 2, 1, 1, 196.0))
sketch7.addConstraint(Sketcher.Constraint("DistanceY", 0, 2, 0, 1, 11.0))
sketch7.addConstraint(Sketcher.Constraint("DistanceX", 0, 2, -1, 1, 2.0))
sketch7.addConstraint(Sketcher.Constraint("DistanceY", -1, 1, 0, 2, 1.5))
sketch7.setExpression("Constraints[8]", "Params.sketch7_width")
sketch7.setExpression("Constraints[9]", "Params.sketch7_height")
pocket4 = body.newObject("PartDesign::Pocket", "Pocket003")
pocket4.Profile = sketch7
pocket4.setExpression("Length", "Params.pocket4_length")
pocket4.Reversed = True

# Sketch on XY plane
sketch8 = body.newObject("Sketcher::SketchObject", "Sketch007")
sketch8.AttachmentSupport = (doc.getObject("XY_Plane"), [""])
sketch8.MapMode = "FlatFace"
sketch8.AttachmentOffset = App.Placement(Vector(0, 0, -100), App.Rotation())
sketch8.addGeometry(Part.Circle(Vector(-65, 8, 0), Vector(0, 0, 1), 1.5), False)
sketch8.addGeometry(Part.Circle(Vector(-135, 8, 0), Vector(0, 0, 1), 1.5), False)
sketch8.addConstraint(Sketcher.Constraint("Equal", 0, 1))
sketch8.addConstraint(Sketcher.Constraint("Horizontal", 0, 3, 1, 3))
sketch8.addConstraint(Sketcher.Constraint("Diameter", 0, 3.0))
sketch8.addConstraint(Sketcher.Constraint("DistanceX", 0, 3, -1, 1, 65.0))
sketch8.addConstraint(Sketcher.Constraint("DistanceY", -1, 1, 0, 3, 8.0))
sketch8.addConstraint(Sketcher.Constraint("DistanceX", 1, 3, -1, 1, 135.0))
sketch8.setExpression("Constraints[2]", "Params.sketch8_diameter")
pocket5 = body.newObject("PartDesign::Pocket", "Pocket004")
pocket5.Profile = sketch8
pocket5.setExpression("Length", "Params.pocket5_length")
pocket5.Reversed = True

doc.recompute()
